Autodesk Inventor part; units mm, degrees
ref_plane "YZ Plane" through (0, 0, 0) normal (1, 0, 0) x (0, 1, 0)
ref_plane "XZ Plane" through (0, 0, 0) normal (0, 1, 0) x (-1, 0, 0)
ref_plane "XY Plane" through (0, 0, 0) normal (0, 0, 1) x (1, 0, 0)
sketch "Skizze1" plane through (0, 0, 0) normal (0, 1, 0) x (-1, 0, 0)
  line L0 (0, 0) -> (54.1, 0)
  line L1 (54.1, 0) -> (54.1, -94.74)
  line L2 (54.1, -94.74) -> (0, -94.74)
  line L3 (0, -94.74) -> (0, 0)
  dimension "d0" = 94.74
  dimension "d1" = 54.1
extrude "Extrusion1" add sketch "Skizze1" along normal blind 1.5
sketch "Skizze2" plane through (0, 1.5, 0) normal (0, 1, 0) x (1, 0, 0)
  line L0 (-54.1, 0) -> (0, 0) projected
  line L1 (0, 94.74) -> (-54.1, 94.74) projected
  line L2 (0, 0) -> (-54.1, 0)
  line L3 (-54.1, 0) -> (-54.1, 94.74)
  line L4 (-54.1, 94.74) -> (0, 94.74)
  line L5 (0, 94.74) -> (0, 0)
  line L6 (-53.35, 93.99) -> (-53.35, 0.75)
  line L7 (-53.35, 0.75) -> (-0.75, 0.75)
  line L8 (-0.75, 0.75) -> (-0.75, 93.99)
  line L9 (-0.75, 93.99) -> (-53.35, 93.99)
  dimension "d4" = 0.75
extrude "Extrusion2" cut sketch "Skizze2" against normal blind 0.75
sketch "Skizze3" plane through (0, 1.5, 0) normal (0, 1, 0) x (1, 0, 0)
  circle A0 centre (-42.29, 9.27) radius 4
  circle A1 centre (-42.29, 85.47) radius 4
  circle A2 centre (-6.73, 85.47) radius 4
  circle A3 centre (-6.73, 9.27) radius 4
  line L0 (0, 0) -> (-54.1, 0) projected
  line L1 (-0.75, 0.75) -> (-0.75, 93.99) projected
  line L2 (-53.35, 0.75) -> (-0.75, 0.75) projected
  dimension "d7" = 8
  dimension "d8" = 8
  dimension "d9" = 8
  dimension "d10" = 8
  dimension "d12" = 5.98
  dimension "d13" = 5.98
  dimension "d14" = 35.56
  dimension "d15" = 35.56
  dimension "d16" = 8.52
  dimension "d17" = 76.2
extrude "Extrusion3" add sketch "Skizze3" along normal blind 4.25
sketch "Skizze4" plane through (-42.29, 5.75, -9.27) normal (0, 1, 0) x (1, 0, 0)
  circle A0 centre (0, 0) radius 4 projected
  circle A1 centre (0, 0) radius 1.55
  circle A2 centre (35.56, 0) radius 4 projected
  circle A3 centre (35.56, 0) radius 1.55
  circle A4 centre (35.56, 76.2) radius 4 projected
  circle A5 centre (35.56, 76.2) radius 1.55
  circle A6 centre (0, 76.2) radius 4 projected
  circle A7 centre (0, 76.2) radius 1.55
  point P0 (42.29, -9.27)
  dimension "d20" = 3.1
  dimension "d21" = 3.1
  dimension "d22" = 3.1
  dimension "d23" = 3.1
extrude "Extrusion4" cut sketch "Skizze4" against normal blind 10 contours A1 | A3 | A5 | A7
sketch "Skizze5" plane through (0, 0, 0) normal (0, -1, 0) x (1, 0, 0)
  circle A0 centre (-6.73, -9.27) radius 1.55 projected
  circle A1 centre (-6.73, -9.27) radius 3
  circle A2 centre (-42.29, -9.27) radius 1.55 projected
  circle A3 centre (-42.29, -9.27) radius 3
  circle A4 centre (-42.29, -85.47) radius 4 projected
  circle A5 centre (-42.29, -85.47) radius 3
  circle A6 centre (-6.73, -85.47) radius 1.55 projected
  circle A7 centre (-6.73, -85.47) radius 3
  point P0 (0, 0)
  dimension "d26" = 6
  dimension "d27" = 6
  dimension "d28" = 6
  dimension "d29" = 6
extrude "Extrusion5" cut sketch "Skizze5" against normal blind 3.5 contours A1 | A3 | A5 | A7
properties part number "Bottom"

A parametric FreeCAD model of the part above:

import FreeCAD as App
import Part
import Sketcher

V = App.Vector
Q = App.Units.Quantity


def add_polygon(sketch, points):
    """Adds a closed chain of lines whose ends are joined by coincident constraints."""
    first, n = sketch.GeometryCount, len(points)
    for a, b in zip(points, points[1:] + points[:1]):
        sketch.addGeometry(Part.LineSegment(App.Vector(*a, 0), App.Vector(*b, 0)), False)
    for i in range(n):
        sketch.addConstraint(Sketcher.Constraint("Coincident", first + i, 2, first + (i + 1) % n, 1))

doc = App.newDocument("Part")
params = doc.addObject("Spreadsheet::Sheet", "Params")
for row, (alias, value) in enumerate([
    ("sketch1_width", "54.1 mm"),
    ("sketch1_height", "94.74 mm"),
    ("pad1_length", "1.5 mm"),
    ("sketch2_width", "54.1 mm"),
    ("sketch2_height", "94.74 mm"),
    ("pocket1_length", "0.75 mm"),
    ("sketch3_diameter", "8 mm"),
    ("pad2_length", "4.25 mm"),
    ("sketch4_diameter", "3.1 mm"),
    ("pocket2_length", "10 mm"),
    ("sketch5_diameter", "6 mm"),
    ("sketch5_diameter2", "3.1 mm"),
    ("pocket3_length", "3.5 mm"),
], start=1):
    params.set(f"A{row}", alias)
    params.set(f"B{row}", "=" + value)
    params.setAlias(f"B{row}", alias)

body = doc.addObject("PartDesign::Body", "Body")

# Sketch on XZ plane
sketch1 = body.newObject("Sketcher::SketchObject", "Sketch")
sketch1.AttachmentSupport = (doc.getObject("XZ_Plane"), [""])
sketch1.MapMode = "FlatFace"
add_polygon(sketch1, [(-54, 0), (0, 0), (0, -95), (-54, -95)])  # lines 0-3
sketch1.addConstraint(Sketcher.Constraint("Horizontal", 0))
sketch1.addConstraint(Sketcher.Constraint("Vertical", 1))
sketch1.addConstraint(Sketcher.Constraint("Horizontal", 2))
sketch1.addConstraint(Sketcher.Constraint("Vertical", 3))
sketch1.addConstraint(Sketcher.Constraint("Coincident", 0, 2, -1, 1))
sketch1.addConstraint(Sketcher.Constraint("DistanceX", 0, 1, 0, 2, Q("54.1 mm")))
sketch1.addConstraint(Sketcher.Constraint("DistanceY", 1, 2, 1, 1, Q("94.74 mm")))
sketch1.setExpression("Constraints[9]", "Params.sketch1_width")
sketch1.setExpression("Constraints[10]", "Params.sketch1_height")
pad1 = body.newObject("PartDesign::Pad", "Pad")
pad1.Profile = sketch1
pad1.setExpression("Length", "Params.pad1_length")
pad1.Reversed = True

# Sketch on XZ plane
sketch2 = body.newObject("Sketcher::SketchObject", "Sketch001")
sketch2.AttachmentSupport = (doc.getObject("XZ_Plane"), [""])
sketch2.MapMode = "FlatFace"
sketch2.AttachmentOffset = App.Placement(V(0, 0, -1.5), App.Rotation())
add_polygon(sketch2, [(-54, -95), (-54, 0), (0, 0), (0, -95)])  # lines 0-3
add_polygon(sketch2, [(-53, -1), (-53, -94), (-1, -94), (-1, -1)])  # lines 4-7
sketch2.addConstraint(Sketcher.Constraint("Vertical", 0))
sketch2.addConstraint(Sketcher.Constraint("Horizontal", 1))
sketch2.addConstraint(Sketcher.Constraint("Vertical", 2))
sketch2.addConstraint(Sketcher.Constraint("Horizontal", 3))
sketch2.addConstraint(Sketcher.Constraint("Vertical", 4))
sketch2.addConstraint(Sketcher.Constraint("Horizontal", 5))
sketch2.addConstraint(Sketcher.Constraint("Vertical", 6))
sketch2.addConstraint(Sketcher.Constraint("Horizontal", 7))
sketch2.addConstraint(Sketcher.Constraint("Coincident", 1, 2, -1, 1))
sketch2.addConstraint(Sketcher.Constraint("DistanceX", 5, 2, -1, 1, Q("0.75 mm")))
sketch2.addConstraint(Sketcher.Constraint("DistanceY", 6, 2, -1, 1, Q("0.75 mm")))
sketch2.addConstraint(Sketcher.Constraint("DistanceX", 3, 2, 4, 2, Q("0.75 mm")))
sketch2.addConstraint(Sketcher.Constraint("DistanceY", 3, 2, 4, 2, Q("0.75 mm")))
sketch2.addConstraint(Sketcher.Constraint("DistanceX", 1, 1, 1, 2, Q("54.1 mm")))
sketch2.addConstraint(Sketcher.Constraint("DistanceY", 0, 1, 0, 2, Q("94.74 mm")))
sketch2.setExpression("Constraints[21]", "Params.sketch2_width")
sketch2.setExpression("Constraints[22]", "Params.sketch2_height")
pocket1 = body.newObject("PartDesign::Pocket", "Pocket")
pocket1.Profile = sketch2
pocket1.setExpression("Length", "Params.pocket1_length")
pocket1.Reversed = True

# Sketch on XZ plane
sketch3 = body.newObject("Sketcher::SketchObject", "Sketch002")
sketch3.AttachmentSupport = (doc.getObject("XZ_Plane"), [""])
sketch3.MapMode = "FlatFace"
sketch3.AttachmentOffset = App.Placement(V(0, 0, -1.5), App.Rotation())
sketch3.addGeometry(Part.Circle(V(-42.3, -9.3, 0), V(0, 0, 1), 4), False)
sketch3.addGeometry(Part.Circle(V(-42.3, -85.5, 0), V(0, 0, 1), 4), False)
sketch3.addGeometry(Part.Circle(V(-6.7, -85.5, 0), V(0, 0, 1), 4), False)
sketch3.addGeometry(Part.Circle(V(-6.7, -9.3, 0), V(0, 0, 1), 4), False)
sketch3.addConstraint(Sketcher.Constraint("Equal", 0, 1))
sketch3.addConstraint(Sketcher.Constraint("Equal", 1, 2))
sketch3.addConstraint(Sketcher.Constraint("Equal", 2, 3))
sketch3.addConstraint(Sketcher.Constraint("Horizontal", 1, 3, 2, 3))
sketch3.addConstraint(Sketcher.Constraint("Horizontal", 0, 3, 3, 3))
sketch3.addConstraint(Sketcher.Constraint("Vertical", 0, 3, 1, 3))
sketch3.addConstraint(Sketcher.Constraint("Vertical", 2, 3, 3, 3))
sketch3.addConstraint(Sketcher.Constraint("Diameter", 0, Q("8 mm")))
sketch3.addConstraint(Sketcher.Constraint("DistanceY", 1, 3, 0, 3, Q("76.2 mm")))
sketch3.addConstraint(Sketcher.Constraint("DistanceX", 1, 3, 2, 3, Q("35.56 mm")))
sketch3.addConstraint(Sketcher.Constraint("DistanceX", 0, 3, -1, 1, Q("42.29 mm")))
sketch3.addConstraint(Sketcher.Constraint("DistanceY", 0, 3, -1, 1, Q("9.27 mm")))
sketch3.setExpression("Constraints[7]", "Params.sketch3_diameter")
pad2 = body.newObject("PartDesign::Pad", "Pad001")
pad2.Profile = sketch3
pad2.setExpression("Length", "Params.pad2_length")
pad2.Reversed = True

# Sketch on XZ plane
sketch4 = body.newObject("Sketcher::SketchObject", "Sketch003")
sketch4.AttachmentSupport = (doc.getObject("XZ_Plane"), [""])
sketch4.MapMode = "FlatFace"
sketch4.AttachmentOffset = App.Placement(V(0, 0, -5.75), App.Rotation())
sketch4.addGeometry(Part.Circle(V(-42.3, -9.3, 0), V(0, 0, 1), 1.6), False)
sketch4.addGeometry(Part.Circle(V(-6.7, -9.3, 0), V(0, 0, 1), 1.6), False)
sketch4.addGeometry(Part.Circle(V(-6.7, -85.5, 0), V(0, 0, 1), 1.6), False)
sketch4.addGeometry(Part.Circle(V(-42.3, -85.5, 0), V(0, 0, 1), 1.6), False)
sketch4.addConstraint(Sketcher.Constraint("Equal", 0, 1))
sketch4.addConstraint(Sketcher.Constraint("Equal", 1, 2))
sketch4.addConstraint(Sketcher.Constraint("Equal", 2, 3))
sketch4.addConstraint(Sketcher.Constraint("Horizontal", 0, 3, 1, 3))
sketch4.addConstraint(Sketcher.Constraint("Horizontal", 2, 3, 3, 3))
sketch4.addConstraint(Sketcher.Constraint("Vertical", 1, 3, 2, 3))
sketch4.addConstraint(Sketcher.Constraint("Vertical", 0, 3, 3, 3))
sketch4.addConstraint(Sketcher.Constraint("Diameter", 0, Q("3.1 mm")))
sketch4.addConstraint(Sketcher.Constraint("DistanceY", 2, 3, 1, 3, Q("76.2 mm")))
sketch4.addConstraint(Sketcher.Constraint("DistanceX", 0, 3, -1, 1, Q("42.29 mm")))
sketch4.addConstraint(Sketcher.Constraint("DistanceY", 0, 3, -1, 1, Q("9.27 mm")))
sketch4.addConstraint(Sketcher.Constraint("DistanceX", 1, 3, -1, 1, Q("6.73 mm")))
sketch4.setExpression("Constraints[7]", "Params.sketch4_diameter")
pocket2 = body.newObject("PartDesign::Pocket", "Pocket001")
pocket2.Profile = sketch4
pocket2.setExpression("Length", "Params.pocket2_length")
pocket2.Reversed = True

# Sketch on XZ plane
sketch5 = body.newObject("Sketcher::SketchObject", "Sketch004")
sketch5.AttachmentSupport = (doc.getObject("XZ_Plane"), [""])
sketch5.MapMode = "FlatFace"
sketch5.addGeometry(Part.Circle(V(-6.7, -9.3, 0), V(0, 0, 1), 3), False)
sketch5.addGeometry(Part.Circle(V(-6.7, -9.3, 0), V(0, 0, 1), 1.6), False)
sketch5.addGeometry(Part.Circle(V(-42.3, -9.3, 0), V(0, 0, 1), 3), False)
sketch5.addGeometry(Part.Circle(V(-42.3, -9.3, 0), V(0, 0, 1), 1.6), False)
sketch5.addGeometry(Part.Circle(V(-42.3, -85.5, 0), V(0, 0, 1), 3), False)
sketch5.addGeometry(Part.Circle(V(-6.7, -85.5, 0), V(0, 0, 1), 3), False)
sketch5.addGeometry(Part.Circle(V(-6.7, -85.5, 0), V(0, 0, 1), 1.6), False)
sketch5.addConstraint(Sketcher.Constraint("Coincident", 1, 3, 0, 3))
sketch5.addConstraint(Sketcher.Constraint("Coincident", 3, 3, 2, 3))
sketch5.addConstraint(Sketcher.Constraint("Coincident", 6, 3, 5, 3))
sketch5.addConstraint(Sketcher.Constraint("Equal", 0, 2))
sketch5.addConstraint(Sketcher.Constraint("Equal", 1, 3))
sketch5.addConstraint(Sketcher.Constraint("Equal", 2, 4))
sketch5.addConstraint(Sketcher.Constraint("Equal", 4, 5))
sketch5.addConstraint(Sketcher.Constraint("Equal", 3, 6))
sketch5.addConstraint(Sketcher.Constraint("Horizontal", 1, 3, 2, 3))
sketch5.addConstraint(Sketcher.Constraint("Horizontal", 4, 3, 5, 3))
sketch5.addConstraint(Sketcher.Constraint("Vertical", 3, 3, 4, 3))
sketch5.addConstraint(Sketcher.Constraint("Vertical", 1, 3, 5, 3))
sketch5.addConstraint(Sketcher.Constraint("Diameter", 0, Q("6 mm")))
sketch5.addConstraint(Sketcher.Constraint("Diameter", 1, Q("3.1 mm")))
sketch5.addConstraint(Sketcher.Constraint("DistanceY", 4, 3, 2, 3, Q("76.2 mm")))
sketch5.addConstraint(Sketcher.Constraint("DistanceX", 0, 3, -1, 1, Q("6.73 mm")))
sketch5.addConstraint(Sketcher.Constraint("DistanceY", 0, 3, -1, 1, Q("9.27 mm")))
sketch5.addConstraint(Sketcher.Constraint("DistanceX", 2, 3, -1, 1, Q("42.29 mm")))
sketch5.setExpression("Constraints[12]", "Params.sketch5_diameter")
sketch5.setExpression("Constraints[13]", "Params.sketch5_diameter2")
pocket3 = body.newObject("PartDesign::Pocket", "Pocket002")
pocket3.Profile = sketch5
pocket3.setExpression("Length", "Params.pocket3_length")

doc.recompute()
